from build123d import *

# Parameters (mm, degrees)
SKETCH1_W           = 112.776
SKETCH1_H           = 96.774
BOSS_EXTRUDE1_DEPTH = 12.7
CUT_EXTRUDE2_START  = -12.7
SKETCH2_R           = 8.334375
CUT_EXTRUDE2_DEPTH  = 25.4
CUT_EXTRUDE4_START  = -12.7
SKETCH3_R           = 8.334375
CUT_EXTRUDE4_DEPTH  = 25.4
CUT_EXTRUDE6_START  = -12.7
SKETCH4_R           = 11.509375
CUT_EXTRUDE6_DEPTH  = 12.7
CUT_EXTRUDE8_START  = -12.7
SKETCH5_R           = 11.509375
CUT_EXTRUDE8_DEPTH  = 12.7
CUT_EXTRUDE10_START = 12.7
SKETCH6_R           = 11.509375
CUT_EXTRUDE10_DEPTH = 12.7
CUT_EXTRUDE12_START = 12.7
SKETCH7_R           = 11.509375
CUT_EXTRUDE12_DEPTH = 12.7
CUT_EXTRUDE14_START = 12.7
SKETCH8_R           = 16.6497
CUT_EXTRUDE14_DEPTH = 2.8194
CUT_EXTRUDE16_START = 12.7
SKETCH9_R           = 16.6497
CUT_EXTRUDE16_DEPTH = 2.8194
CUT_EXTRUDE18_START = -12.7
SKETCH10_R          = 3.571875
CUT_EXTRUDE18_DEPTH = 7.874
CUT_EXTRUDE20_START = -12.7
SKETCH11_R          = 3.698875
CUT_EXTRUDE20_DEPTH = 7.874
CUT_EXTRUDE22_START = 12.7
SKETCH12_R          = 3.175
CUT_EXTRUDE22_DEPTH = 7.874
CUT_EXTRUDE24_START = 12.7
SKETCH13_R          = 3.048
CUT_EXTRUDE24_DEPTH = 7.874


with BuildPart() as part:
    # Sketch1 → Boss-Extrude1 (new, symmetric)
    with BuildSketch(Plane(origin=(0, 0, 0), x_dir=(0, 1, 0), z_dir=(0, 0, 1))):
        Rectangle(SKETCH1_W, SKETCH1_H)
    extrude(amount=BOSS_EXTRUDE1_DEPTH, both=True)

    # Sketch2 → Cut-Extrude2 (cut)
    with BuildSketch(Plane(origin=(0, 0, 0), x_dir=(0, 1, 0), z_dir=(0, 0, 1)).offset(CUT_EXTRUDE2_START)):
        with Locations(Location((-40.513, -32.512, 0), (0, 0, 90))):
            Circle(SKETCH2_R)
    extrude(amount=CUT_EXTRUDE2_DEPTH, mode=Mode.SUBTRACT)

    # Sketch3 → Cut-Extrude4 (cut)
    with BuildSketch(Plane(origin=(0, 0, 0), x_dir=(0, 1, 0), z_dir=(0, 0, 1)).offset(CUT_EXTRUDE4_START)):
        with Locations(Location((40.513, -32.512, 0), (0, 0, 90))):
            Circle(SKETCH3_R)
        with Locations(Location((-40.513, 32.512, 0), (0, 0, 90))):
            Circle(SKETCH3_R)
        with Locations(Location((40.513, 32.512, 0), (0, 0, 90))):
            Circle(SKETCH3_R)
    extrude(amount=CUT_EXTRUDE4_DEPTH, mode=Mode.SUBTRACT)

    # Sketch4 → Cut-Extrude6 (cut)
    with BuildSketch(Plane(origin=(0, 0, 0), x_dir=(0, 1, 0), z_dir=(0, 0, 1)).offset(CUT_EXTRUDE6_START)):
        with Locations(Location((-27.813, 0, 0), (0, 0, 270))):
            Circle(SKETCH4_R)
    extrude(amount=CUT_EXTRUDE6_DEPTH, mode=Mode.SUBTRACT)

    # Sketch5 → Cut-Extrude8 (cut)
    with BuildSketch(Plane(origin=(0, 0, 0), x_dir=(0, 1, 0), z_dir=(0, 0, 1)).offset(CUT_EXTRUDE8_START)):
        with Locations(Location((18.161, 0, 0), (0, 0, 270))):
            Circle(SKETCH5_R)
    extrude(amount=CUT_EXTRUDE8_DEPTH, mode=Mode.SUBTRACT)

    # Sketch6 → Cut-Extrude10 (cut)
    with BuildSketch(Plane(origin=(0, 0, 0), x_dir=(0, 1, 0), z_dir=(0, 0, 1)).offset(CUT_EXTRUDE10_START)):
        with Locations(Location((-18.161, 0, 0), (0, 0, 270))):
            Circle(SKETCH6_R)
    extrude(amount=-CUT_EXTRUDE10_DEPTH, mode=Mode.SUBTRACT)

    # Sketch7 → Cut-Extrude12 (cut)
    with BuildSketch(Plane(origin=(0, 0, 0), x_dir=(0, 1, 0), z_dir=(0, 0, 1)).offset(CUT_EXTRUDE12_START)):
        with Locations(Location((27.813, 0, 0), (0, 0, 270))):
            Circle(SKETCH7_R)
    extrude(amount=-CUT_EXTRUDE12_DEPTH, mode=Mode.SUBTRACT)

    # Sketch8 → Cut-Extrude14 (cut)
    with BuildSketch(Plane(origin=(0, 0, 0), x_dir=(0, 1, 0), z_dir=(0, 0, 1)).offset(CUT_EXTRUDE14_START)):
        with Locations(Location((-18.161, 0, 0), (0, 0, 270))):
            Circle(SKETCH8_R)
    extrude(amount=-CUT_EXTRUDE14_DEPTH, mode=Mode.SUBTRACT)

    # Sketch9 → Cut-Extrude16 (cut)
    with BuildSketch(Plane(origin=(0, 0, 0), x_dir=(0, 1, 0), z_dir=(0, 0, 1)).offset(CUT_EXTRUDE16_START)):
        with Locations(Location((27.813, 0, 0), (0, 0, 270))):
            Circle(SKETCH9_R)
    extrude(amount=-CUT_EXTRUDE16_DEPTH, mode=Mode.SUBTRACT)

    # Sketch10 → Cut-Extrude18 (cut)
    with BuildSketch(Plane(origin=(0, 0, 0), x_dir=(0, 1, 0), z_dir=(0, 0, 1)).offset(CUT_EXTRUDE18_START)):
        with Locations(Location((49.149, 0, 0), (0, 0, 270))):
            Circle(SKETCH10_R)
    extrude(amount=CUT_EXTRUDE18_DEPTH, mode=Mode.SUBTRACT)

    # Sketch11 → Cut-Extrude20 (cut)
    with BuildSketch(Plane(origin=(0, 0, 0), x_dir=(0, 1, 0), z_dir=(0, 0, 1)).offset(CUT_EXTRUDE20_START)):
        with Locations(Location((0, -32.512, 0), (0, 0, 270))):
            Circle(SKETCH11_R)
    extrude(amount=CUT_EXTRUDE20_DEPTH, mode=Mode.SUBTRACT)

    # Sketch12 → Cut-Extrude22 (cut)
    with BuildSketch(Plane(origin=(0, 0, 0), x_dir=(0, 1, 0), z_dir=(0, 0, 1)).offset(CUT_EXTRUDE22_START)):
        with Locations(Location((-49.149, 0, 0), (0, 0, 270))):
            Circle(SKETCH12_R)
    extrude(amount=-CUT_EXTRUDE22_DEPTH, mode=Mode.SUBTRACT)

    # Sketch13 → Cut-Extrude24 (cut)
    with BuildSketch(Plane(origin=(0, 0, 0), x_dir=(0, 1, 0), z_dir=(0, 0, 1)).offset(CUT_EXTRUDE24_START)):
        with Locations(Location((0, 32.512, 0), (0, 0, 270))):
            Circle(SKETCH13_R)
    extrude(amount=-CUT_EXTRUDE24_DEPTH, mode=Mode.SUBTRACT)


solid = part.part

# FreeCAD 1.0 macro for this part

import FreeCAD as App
import Part
import Sketcher

V = App.Vector
Q = App.Units.Quantity


def add_polygon(sketch, points):
    """Adds a closed chain of lines whose ends are joined by coincident constraints."""
    first, n = sketch.GeometryCount, len(points)
    for a, b in zip(points, points[1:] + points[:1]):
        sketch.addGeometry(Part.LineSegment(App.Vector(*a, 0), App.Vector(*b, 0)), False)
    for i in range(n):
        sketch.addConstraint(Sketcher.Constraint("Coincident", first + i, 2, first + (i + 1) % n, 1))

doc = App.newDocument("Part")
body = doc.addObject("PartDesign::Body", "Body")

# Sketch on XY plane
sketch1 = body.newObject("Sketcher::SketchObject", "Sketch")
sketch1.AttachmentSupport = (doc.getObject("XY_Plane"), [""])
sketch1.MapMode = "FlatFace"
add_polygon(sketch1, [(-48, -56), (48, -56), (48, 56), (-48, 56)])  # lines 0-3
sketch1.addConstraint(Sketcher.Constraint("Horizontal", 0))
sketch1.addConstraint(Sketcher.Constraint("Vertical", 1))
sketch1.addConstraint(Sketcher.Constraint("Horizontal", 2))
sketch1.addConstraint(Sketcher.Constraint("Vertical", 3))
sketch1.addConstraint(Sketcher.Constraint("Symmetric", 0, 2, 2, 2, -1, 1))
sketch1.addConstraint(Sketcher.Constraint("DistanceX", 0, 1, 0, 2, Q("3.81 in")))
sketch1.addConstraint(Sketcher.Constraint("DistanceY", 1, 1, 1, 2, Q("4.44 in")))
pad1 = body.newObject("PartDesign::Pad", "Pad")
pad1.Profile = sketch1
pad1.Length = Q("1 in")
pad1.Midplane = True

# Sketch on XY plane
sketch2 = body.newObject("Sketcher::SketchObject", "Sketch001")
sketch2.AttachmentSupport = (doc.getObject("XY_Plane"), [""])
sketch2.MapMode = "FlatFace"
sketch2.AttachmentOffset = App.Placement(V(0, 0, -0.5 * 25.4), App.Rotation())
sketch2.addGeometry(Part.Circle(V(33, -41, 0), V(0, 0, 1), 8), False)
sketch2.addConstraint(Sketcher.Constraint("Diameter", 0, Q("0.65625 in")))
sketch2.addConstraint(Sketcher.Constraint("DistanceX", -1, 1, 0, 3, Q("1.28 in")))
sketch2.addConstraint(Sketcher.Constraint("DistanceY", 0, 3, -1, 1, Q("1.595 in")))
pocket1 = body.newObject("PartDesign::Pocket", "Pocket")
pocket1.Profile = sketch2
pocket1.Length = Q("1 in")
pocket1.Reversed = True

# Sketch on XY plane
sketch3 = body.newObject("Sketcher::SketchObject", "Sketch002")
sketch3.AttachmentSupport = (doc.getObject("XY_Plane"), [""])
sketch3.MapMode = "FlatFace"
sketch3.AttachmentOffset = App.Placement(V(0, 0, -0.5 * 25.4), App.Rotation())
sketch3.addGeometry(Part.Circle(V(33, 41, 0), V(0, 0, 1), 8), False)
sketch3.addGeometry(Part.Circle(V(-33, -41, 0), V(0, 0, 1), 8), False)
sketch3.addGeometry(Part.Circle(V(-33, 41, 0), V(0, 0, 1), 8), False)
sketch3.addConstraint(Sketcher.Constraint("Equal", 0, 1))
sketch3.addConstraint(Sketcher.Constraint("Equal", 1, 2))
sketch3.addConstraint(Sketcher.Constraint("Symmetric", 0, 3, 1, 3, -1, 1))
sketch3.addConstraint(Sketcher.Constraint("Symmetric", 0, 3, 2, 3, -2))
sketch3.addConstraint(Sketcher.Constraint("Diameter", 0, Q("0.65625 in")))
sketch3.addConstraint(Sketcher.Constraint("DistanceX", -1, 1, 0, 3, Q("1.28 in")))
sketch3.addConstraint(Sketcher.Constraint("DistanceY", 1, 3, 0, 3, Q("3.19 in")))
pocket2 = body.newObject("PartDesign::Pocket", "Pocket001")
pocket2.Profile = sketch3
pocket2.Length = Q("1 in")
pocket2.Reversed = True

# Sketch on XY plane
sketch4 = body.newObject("Sketcher::SketchObject", "Sketch003")
sketch4.AttachmentSupport = (doc.getObject("XY_Plane"), [""])
sketch4.MapMode = "FlatFace"
sketch4.AttachmentOffset = App.Placement(V(0, 0, -0.5 * 25.4), App.Rotation())
sketch4.addGeometry(Part.Circle(V(0, -28, 0), V(0, 0, 1), 12), False)
sketch4.addConstraint(Sketcher.Constraint("PointOnObject", 0, 3, -2))
sketch4.addConstraint(Sketcher.Constraint("Diameter", 0, Q("0.90625 in")))
sketch4.addConstraint(Sketcher.Constraint("DistanceY", 0, 3, -1, 1, Q("1.095 in")))
pocket3 = body.newObject("PartDesign::Pocket", "Pocket002")
pocket3.Profile = sketch4
pocket3.Length = Q("0.5 in")
pocket3.Reversed = True

# Sketch on XY plane
sketch5 = body.newObject("Sketcher::SketchObject", "Sketch004")
sketch5.AttachmentSupport = (doc.getObject("XY_Plane"), [""])
sketch5.MapMode = "FlatFace"
sketch5.AttachmentOffset = App.Placement(V(0, 0, -0.5 * 25.4), App.Rotation())
sketch5.addGeometry(Part.Circle(V(0, 18, 0), V(0, 0, 1), 12), False)
sketch5.addConstraint(Sketcher.Constraint("PointOnObject", 0, 3, -2))
sketch5.addConstraint(Sketcher.Constraint("Diameter", 0, Q("0.90625 in")))
sketch5.addConstraint(Sketcher.Constraint("DistanceY", -1, 1, 0, 3, Q("0.715 in")))
pocket4 = body.newObject("PartDesign::Pocket", "Pocket003")
pocket4.Profile = sketch5
pocket4.Length = Q("0.5 in")
pocket4.Reversed = True

# Sketch on XY plane
sketch6 = body.newObject("Sketcher::SketchObject", "Sketch005")
sketch6.AttachmentSupport = (doc.getObject("XY_Plane"), [""])
sketch6.MapMode = "FlatFace"
sketch6.AttachmentOffset = App.Placement(V(0, 0, 0.5 * 25.4), App.Rotation())
sketch6.addGeometry(Part.Circle(V(0, -18, 0), V(0, 0, 1), 12), False)
sketch6.addConstraint(Sketcher.Constraint("PointOnObject", 0, 3, -2))
sketch6.addConstraint(Sketcher.Constraint("Diameter", 0, Q("0.90625 in")))
sketch6.addConstraint(Sketcher.Constraint("DistanceY", 0, 3, -1, 1, Q("0.715 in")))
pocket5 = body.newObject("PartDesign::Pocket", "Pocket004")
pocket5.Profile = sketch6
pocket5.Length = Q("0.5 in")

# Sketch on XY plane
sketch7 = body.newObject("Sketcher::SketchObject", "Sketch006")
sketch7.AttachmentSupport = (doc.getObject("XY_Plane"), [""])
sketch7.MapMode = "FlatFace"
sketch7.AttachmentOffset = App.Placement(V(0, 0, 0.5 * 25.4), App.Rotation())
sketch7.addGeometry(Part.Circle(V(0, 28, 0), V(0, 0, 1), 12), False)
sketch7.addConstraint(Sketcher.Constraint("PointOnObject", 0, 3, -2))
sketch7.addConstraint(Sketcher.Constraint("Diameter", 0, Q("0.90625 in")))
sketch7.addConstraint(Sketcher.Constraint("DistanceY", -1, 1, 0, 3, Q("1.095 in")))
pocket6 = body.newObject("PartDesign::Pocket", "Pocket005")
pocket6.Profile = sketch7
pocket6.Length = Q("0.5 in")

# Sketch on XY plane
sketch8 = body.newObject("Sketcher::SketchObject", "Sketch007")
sketch8.AttachmentSupport = (doc.getObject("XY_Plane"), [""])
sketch8.MapMode = "FlatFace"
sketch8.AttachmentOffset = App.Placement(V(0, 0, 0.5 * 25.4), App.Rotation())
sketch8.addGeometry(Part.Circle(V(0, -18, 0), V(0, 0, 1), 17), False)
sketch8.addConstraint(Sketcher.Constraint("PointOnObject", 0, 3, -2))
sketch8.addConstraint(Sketcher.Constraint("Diameter", 0, Q("1.311 in")))
sketch8.addConstraint(Sketcher.Constraint("DistanceY", 0, 3, -1, 1, Q("0.715 in")))
pocket7 = body.newObject("PartDesign::Pocket", "Pocket006")
pocket7.Profile = sketch8
pocket7.Length = Q("0.111 in")

# Sketch on XY plane
sketch9 = body.newObject("Sketcher::SketchObject", "Sketch008")
sketch9.AttachmentSupport = (doc.getObject("XY_Plane"), [""])
sketch9.MapMode = "FlatFace"
sketch9.AttachmentOffset = App.Placement(V(0, 0, 0.5 * 25.4), App.Rotation())
sketch9.addGeometry(Part.Circle(V(0, 28, 0), V(0, 0, 1), 17), False)
sketch9.addConstraint(Sketcher.Constraint("PointOnObject", 0, 3, -2))
sketch9.addConstraint(Sketcher.Constraint("Diameter", 0, Q("1.311 in")))
sketch9.addConstraint(Sketcher.Constraint("DistanceY", -1, 1, 0, 3, Q("1.095 in")))
pocket8 = body.newObject("PartDesign::Pocket", "Pocket007")
pocket8.Profile = sketch9
pocket8.Length = Q("0.111 in")

# Sketch on XY plane
sketch10 = body.newObject("Sketcher::SketchObject", "Sketch009")
sketch10.AttachmentSupport = (doc.getObject("XY_Plane"), [""])
sketch10.MapMode = "FlatFace"
sketch10.AttachmentOffset = App.Placement(V(0, 0, -0.5 * 25.4), App.Rotation())
sketch10.addGeometry(Part.Circle(V(0, 49.1, 0), V(0, 0, 1), 3.6), False)
sketch10.addConstraint(Sketcher.Constraint("PointOnObject", 0, 3, -2))
sketch10.addConstraint(Sketcher.Constraint("Diameter", 0, Q("0.28125 in")))
sketch10.addConstraint(Sketcher.Constraint("DistanceY", -1, 1, 0, 3, Q("1.935 in")))
pocket9 = body.newObject("PartDesign::Pocket", "Pocket008")
pocket9.Profile = sketch10
pocket9.Length = Q("0.31 in")
pocket9.Reversed = True

# Sketch on XY plane
sketch11 = body.newObject("Sketcher::SketchObject", "Sketch010")
sketch11.AttachmentSupport = (doc.getObject("XY_Plane"), [""])
sketch11.MapMode = "FlatFace"
sketch11.AttachmentOffset = App.Placement(V(0, 0, -0.5 * 25.4), App.Rotation())
sketch11.addGeometry(Part.Circle(V(32.5, 0, 0), V(0, 0, 1), 3.7), False)
sketch11.addConstraint(Sketcher.Constraint("PointOnObject", 0, 3, -1))
sketch11.addConstraint(Sketcher.Constraint("DistanceX", -1, 1, 0, 3, Q("1.28 in")))
sketch11.addConstraint(Sketcher.Constraint("Diameter", 0, Q("7.39775 mm")))
pocket10 = body.newObject("PartDesign::Pocket", "Pocket009")
pocket10.Profile = sketch11
pocket10.Length = Q("0.31 in")
pocket10.Reversed = True

# Sketch on XY plane
sketch12 = body.newObject("Sketcher::SketchObject", "Sketch011")
sketch12.AttachmentSupport = (doc.getObject("XY_Plane"), [""])
sketch12.MapMode = "FlatFace"
sketch12.AttachmentOffset = App.Placement(V(0, 0, 0.5 * 25.4), App.Rotation())
sketch12.addGeometry(Part.Circle(V(0, -49.1, 0), V(0, 0, 1), 3.2), False)
sketch12.addConstraint(Sketcher.Constraint("PointOnObject", 0, 3, -2))
sketch12.addConstraint(Sketcher.Constraint("Diameter", 0, Q("0.25 in")))
sketch12.addConstraint(Sketcher.Constraint("DistanceY", 0, 3, -1, 1, Q("1.935 in")))
pocket11 = body.newObject("PartDesign::Pocket", "Pocket010")
pocket11.Profile = sketch12
pocket11.Length = Q("0.31 in")

# Sketch on XY plane
sketch13 = body.newObject("Sketcher::SketchObject", "Sketch012")
sketch13.AttachmentSupport = (doc.getObject("XY_Plane"), [""])
sketch13.MapMode = "FlatFace"
sketch13.AttachmentOffset = App.Placement(V(0, 0, 0.5 * 25.4), App.Rotation())
sketch13.addGeometry(Part.Circle(V(-32.5, 0, 0), V(0, 0, 1), 3), False)
sketch13.addConstraint(Sketcher.Constraint("PointOnObject", 0, 3, -1))
sketch13.addConstraint(Sketcher.Constraint("Diameter", 0, Q("0.24 in")))
sketch13.addConstraint(Sketcher.Constraint("DistanceX", 0, 3, -1, 1, Q("1.28 in")))
pocket12 = body.newObject("PartDesign::Pocket", "Pocket011")
pocket12.Profile = sketch13
pocket12.Length = Q("0.31 in")

doc.recompute()
